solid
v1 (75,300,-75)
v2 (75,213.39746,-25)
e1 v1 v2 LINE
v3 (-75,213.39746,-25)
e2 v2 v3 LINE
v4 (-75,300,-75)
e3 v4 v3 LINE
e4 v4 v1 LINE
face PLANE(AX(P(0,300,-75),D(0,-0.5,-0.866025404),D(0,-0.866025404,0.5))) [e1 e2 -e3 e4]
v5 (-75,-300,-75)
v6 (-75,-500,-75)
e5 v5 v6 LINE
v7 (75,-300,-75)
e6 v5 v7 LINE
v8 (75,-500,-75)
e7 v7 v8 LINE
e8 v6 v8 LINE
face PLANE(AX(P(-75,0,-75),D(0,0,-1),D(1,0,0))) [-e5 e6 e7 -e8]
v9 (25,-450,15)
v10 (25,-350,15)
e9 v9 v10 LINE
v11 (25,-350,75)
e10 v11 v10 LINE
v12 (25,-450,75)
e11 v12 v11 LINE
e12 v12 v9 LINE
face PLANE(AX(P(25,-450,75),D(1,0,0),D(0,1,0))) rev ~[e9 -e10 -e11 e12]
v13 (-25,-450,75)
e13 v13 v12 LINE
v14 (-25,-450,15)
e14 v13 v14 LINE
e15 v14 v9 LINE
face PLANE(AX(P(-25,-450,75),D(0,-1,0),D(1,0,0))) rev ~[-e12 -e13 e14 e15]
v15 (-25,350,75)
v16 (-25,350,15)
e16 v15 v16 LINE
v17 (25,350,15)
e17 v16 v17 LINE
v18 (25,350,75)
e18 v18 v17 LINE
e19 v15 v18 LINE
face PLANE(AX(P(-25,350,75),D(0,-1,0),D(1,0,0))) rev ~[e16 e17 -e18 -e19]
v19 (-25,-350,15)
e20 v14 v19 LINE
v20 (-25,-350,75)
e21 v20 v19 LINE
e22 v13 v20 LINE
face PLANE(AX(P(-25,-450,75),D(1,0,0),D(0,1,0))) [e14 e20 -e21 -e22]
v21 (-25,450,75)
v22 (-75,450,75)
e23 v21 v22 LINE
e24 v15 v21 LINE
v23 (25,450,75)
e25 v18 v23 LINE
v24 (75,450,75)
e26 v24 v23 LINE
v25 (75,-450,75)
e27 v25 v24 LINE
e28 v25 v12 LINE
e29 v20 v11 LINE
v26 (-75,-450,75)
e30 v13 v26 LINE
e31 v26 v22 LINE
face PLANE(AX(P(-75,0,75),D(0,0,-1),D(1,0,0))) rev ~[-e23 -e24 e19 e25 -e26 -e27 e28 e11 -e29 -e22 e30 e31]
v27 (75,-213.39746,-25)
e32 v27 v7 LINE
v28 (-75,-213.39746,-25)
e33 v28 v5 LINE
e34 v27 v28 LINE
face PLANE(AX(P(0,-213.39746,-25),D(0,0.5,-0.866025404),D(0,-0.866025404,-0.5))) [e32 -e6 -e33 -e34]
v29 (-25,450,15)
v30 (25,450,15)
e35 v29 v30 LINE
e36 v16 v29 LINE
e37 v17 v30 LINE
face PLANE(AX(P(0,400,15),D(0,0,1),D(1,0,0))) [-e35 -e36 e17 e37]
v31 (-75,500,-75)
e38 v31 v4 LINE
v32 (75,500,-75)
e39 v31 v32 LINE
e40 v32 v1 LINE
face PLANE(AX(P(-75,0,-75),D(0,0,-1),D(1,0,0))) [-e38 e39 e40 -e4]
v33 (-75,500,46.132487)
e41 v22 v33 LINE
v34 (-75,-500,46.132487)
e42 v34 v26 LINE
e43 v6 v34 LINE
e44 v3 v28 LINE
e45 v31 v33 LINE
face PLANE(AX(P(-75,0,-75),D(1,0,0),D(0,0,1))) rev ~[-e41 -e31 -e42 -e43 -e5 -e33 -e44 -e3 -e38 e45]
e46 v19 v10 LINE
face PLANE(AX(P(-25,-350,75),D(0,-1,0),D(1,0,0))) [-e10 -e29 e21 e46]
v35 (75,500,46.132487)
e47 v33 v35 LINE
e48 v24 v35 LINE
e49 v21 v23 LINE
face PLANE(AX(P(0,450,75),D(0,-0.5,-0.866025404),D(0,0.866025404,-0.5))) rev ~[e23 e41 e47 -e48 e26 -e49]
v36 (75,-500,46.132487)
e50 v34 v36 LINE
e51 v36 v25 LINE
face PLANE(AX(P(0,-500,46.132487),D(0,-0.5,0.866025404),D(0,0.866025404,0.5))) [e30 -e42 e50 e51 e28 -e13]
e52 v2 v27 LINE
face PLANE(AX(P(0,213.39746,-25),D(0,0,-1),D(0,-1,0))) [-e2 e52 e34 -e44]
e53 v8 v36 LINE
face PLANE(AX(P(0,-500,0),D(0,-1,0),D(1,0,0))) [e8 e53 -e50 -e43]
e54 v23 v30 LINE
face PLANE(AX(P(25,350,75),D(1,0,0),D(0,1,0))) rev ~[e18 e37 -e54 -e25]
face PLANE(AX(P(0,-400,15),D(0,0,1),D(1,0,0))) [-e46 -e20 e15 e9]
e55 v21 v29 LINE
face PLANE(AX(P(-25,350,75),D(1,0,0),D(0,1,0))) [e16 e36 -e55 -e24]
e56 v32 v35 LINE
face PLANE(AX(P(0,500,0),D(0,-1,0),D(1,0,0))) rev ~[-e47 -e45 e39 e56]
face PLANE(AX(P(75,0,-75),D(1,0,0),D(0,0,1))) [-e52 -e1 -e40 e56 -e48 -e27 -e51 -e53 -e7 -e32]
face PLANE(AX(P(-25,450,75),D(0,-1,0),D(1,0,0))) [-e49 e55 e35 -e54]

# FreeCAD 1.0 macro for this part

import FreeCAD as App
import Part
import Sketcher

V = App.Vector
Q = App.Units.Quantity


def add_polygon(sketch, points):
    """Adds a closed chain of lines whose ends are joined by coincident constraints."""
    first, n = sketch.GeometryCount, len(points)
    for a, b in zip(points, points[1:] + points[:1]):
        sketch.addGeometry(Part.LineSegment(App.Vector(*a, 0), App.Vector(*b, 0)), False)
    for i in range(n):
        sketch.addConstraint(Sketcher.Constraint("Coincident", first + i, 2, first + (i + 1) % n, 1))

doc = App.newDocument("Part")
body = doc.addObject("PartDesign::Body", "Body")

sketch1 = body.newObject("Sketcher::SketchObject", "Sketch")
sketch1.AttachmentSupport = (doc.getObject("XZ_Plane"), [""])
sketch1.MapMode = "FlatFace"
add_polygon(sketch1, [(-75, 75), (-75, -75), (75, -75), (75, 75)])
sketch1.addConstraint([
    Sketcher.Constraint("Vertical", 0),
    Sketcher.Constraint("Horizontal", 1),
    Sketcher.Constraint("Vertical", 2),
    Sketcher.Constraint("Horizontal", 3),
    Sketcher.Constraint("Symmetric", 0, 2, 2, 2, -1, 1),
    Sketcher.Constraint("Equal", 3, 0),
    Sketcher.Constraint("DistanceX", 1, 1, 1, 2, Q("150 mm")),
])
pad1 = body.newObject("PartDesign::Pad", "Pad")
pad1.Profile = sketch1
pad1.Length = 1000
pad1.Midplane = True

sketch2 = body.newObject("Sketcher::SketchObject", "Sketch001")
sketch2.AttachmentSupport = (doc.getObject("YZ_Plane"), [""])
sketch2.MapMode = "FlatFace"
add_polygon(sketch2, [(-500, 75), (-500, 46.132487), (-450, 75)])
add_polygon(sketch2, [(-213.39746, -25), (-300, -75), (300, -75), (213.39746, -25)])
add_polygon(sketch2, [(450, 75), (500, 46.132487), (500, 75)])
sketch2.addConstraint([
    Sketcher.Constraint("Vertical", 0),
    Sketcher.Constraint("Horizontal", 2),
    Sketcher.Constraint("Horizontal", 4),
    Sketcher.Constraint("Horizontal", 6),
    Sketcher.Constraint("Vertical", 8),
    Sketcher.Constraint("Horizontal", 9),
    Sketcher.Constraint("Symmetric", 0, 2, 7, 2, -2),
    Sketcher.Constraint("Symmetric", 1, 2, 9, 2, -2),
    Sketcher.Constraint("Parallel", 1, 3),
    Sketcher.Constraint("Parallel", 5, 7),
    Sketcher.Constraint("DistanceX", 2, 2, 2, 1, Q("50 mm")),
    Sketcher.Constraint("DistanceX", 4, 1, 4, 2, Q("600 mm")),
    Sketcher.Constraint("Angle", 1, Q("30 deg")),
    Sketcher.Constraint("Distance", 3, Q("100 mm")),
    Sketcher.Constraint("DistanceX", 0, 2, -1, 1, Q("500 mm")),
    Sketcher.Constraint("DistanceY", -1, 1, 1, 2, Q("75 mm")),
    Sketcher.Constraint("DistanceX", 3, 2, -1, 1, Q("300 mm")),
    Sketcher.Constraint("DistanceY", 3, 2, -1, 1, Q("75 mm")),
])
pocket1 = body.newObject("PartDesign::Pocket", "Pocket")
pocket1.Profile = sketch2
pocket1.Length = 150
pocket1.Midplane = True

sketch3 = body.newObject("Sketcher::SketchObject", "Sketch002")
sketch3.AttachmentSupport = (doc.getObject("XY_Plane"), [""])
sketch3.MapMode = "FlatFace"
sketch3.AttachmentOffset = App.Placement(V(0, 0, 75), App.Rotation())
add_polygon(sketch3, [(-25, 450), (-25, 350), (25, 350), (25, 450)])
add_polygon(sketch3, [(-25, -350), (-25, -450), (25, -450), (25, -350)])
sketch3.addConstraint([
    Sketcher.Constraint("Vertical", 0),
    Sketcher.Constraint("Horizontal", 1),
    Sketcher.Constraint("Vertical", 2),
    Sketcher.Constraint("Horizontal", 3),
    Sketcher.Constraint("Vertical", 4),
    Sketcher.Constraint("Horizontal", 5),
    Sketcher.Constraint("Vertical", 6),
    Sketcher.Constraint("Horizontal", 7),
    Sketcher.Constraint("Symmetric", 2, 2, 4, 2, -1, 1),
    Sketcher.Constraint("Symmetric", 0, 2, 6, 2, -1, 1),
    Sketcher.Constraint("Vertical", 3, 2, 4, 2),
    Sketcher.Constraint("DistanceX", 1, 1, 1, 2, Q("50 mm")),
    Sketcher.Constraint("DistanceY", 0, 2, 0, 1, Q("100 mm")),
    Sketcher.Constraint("DistanceY", -1, 1, 0, 2, Q("350 mm")),
])
pocket2 = body.newObject("PartDesign::Pocket", "Pocket001")
pocket2.Profile = sketch3
pocket2.Length = 60

doc.recompute()
